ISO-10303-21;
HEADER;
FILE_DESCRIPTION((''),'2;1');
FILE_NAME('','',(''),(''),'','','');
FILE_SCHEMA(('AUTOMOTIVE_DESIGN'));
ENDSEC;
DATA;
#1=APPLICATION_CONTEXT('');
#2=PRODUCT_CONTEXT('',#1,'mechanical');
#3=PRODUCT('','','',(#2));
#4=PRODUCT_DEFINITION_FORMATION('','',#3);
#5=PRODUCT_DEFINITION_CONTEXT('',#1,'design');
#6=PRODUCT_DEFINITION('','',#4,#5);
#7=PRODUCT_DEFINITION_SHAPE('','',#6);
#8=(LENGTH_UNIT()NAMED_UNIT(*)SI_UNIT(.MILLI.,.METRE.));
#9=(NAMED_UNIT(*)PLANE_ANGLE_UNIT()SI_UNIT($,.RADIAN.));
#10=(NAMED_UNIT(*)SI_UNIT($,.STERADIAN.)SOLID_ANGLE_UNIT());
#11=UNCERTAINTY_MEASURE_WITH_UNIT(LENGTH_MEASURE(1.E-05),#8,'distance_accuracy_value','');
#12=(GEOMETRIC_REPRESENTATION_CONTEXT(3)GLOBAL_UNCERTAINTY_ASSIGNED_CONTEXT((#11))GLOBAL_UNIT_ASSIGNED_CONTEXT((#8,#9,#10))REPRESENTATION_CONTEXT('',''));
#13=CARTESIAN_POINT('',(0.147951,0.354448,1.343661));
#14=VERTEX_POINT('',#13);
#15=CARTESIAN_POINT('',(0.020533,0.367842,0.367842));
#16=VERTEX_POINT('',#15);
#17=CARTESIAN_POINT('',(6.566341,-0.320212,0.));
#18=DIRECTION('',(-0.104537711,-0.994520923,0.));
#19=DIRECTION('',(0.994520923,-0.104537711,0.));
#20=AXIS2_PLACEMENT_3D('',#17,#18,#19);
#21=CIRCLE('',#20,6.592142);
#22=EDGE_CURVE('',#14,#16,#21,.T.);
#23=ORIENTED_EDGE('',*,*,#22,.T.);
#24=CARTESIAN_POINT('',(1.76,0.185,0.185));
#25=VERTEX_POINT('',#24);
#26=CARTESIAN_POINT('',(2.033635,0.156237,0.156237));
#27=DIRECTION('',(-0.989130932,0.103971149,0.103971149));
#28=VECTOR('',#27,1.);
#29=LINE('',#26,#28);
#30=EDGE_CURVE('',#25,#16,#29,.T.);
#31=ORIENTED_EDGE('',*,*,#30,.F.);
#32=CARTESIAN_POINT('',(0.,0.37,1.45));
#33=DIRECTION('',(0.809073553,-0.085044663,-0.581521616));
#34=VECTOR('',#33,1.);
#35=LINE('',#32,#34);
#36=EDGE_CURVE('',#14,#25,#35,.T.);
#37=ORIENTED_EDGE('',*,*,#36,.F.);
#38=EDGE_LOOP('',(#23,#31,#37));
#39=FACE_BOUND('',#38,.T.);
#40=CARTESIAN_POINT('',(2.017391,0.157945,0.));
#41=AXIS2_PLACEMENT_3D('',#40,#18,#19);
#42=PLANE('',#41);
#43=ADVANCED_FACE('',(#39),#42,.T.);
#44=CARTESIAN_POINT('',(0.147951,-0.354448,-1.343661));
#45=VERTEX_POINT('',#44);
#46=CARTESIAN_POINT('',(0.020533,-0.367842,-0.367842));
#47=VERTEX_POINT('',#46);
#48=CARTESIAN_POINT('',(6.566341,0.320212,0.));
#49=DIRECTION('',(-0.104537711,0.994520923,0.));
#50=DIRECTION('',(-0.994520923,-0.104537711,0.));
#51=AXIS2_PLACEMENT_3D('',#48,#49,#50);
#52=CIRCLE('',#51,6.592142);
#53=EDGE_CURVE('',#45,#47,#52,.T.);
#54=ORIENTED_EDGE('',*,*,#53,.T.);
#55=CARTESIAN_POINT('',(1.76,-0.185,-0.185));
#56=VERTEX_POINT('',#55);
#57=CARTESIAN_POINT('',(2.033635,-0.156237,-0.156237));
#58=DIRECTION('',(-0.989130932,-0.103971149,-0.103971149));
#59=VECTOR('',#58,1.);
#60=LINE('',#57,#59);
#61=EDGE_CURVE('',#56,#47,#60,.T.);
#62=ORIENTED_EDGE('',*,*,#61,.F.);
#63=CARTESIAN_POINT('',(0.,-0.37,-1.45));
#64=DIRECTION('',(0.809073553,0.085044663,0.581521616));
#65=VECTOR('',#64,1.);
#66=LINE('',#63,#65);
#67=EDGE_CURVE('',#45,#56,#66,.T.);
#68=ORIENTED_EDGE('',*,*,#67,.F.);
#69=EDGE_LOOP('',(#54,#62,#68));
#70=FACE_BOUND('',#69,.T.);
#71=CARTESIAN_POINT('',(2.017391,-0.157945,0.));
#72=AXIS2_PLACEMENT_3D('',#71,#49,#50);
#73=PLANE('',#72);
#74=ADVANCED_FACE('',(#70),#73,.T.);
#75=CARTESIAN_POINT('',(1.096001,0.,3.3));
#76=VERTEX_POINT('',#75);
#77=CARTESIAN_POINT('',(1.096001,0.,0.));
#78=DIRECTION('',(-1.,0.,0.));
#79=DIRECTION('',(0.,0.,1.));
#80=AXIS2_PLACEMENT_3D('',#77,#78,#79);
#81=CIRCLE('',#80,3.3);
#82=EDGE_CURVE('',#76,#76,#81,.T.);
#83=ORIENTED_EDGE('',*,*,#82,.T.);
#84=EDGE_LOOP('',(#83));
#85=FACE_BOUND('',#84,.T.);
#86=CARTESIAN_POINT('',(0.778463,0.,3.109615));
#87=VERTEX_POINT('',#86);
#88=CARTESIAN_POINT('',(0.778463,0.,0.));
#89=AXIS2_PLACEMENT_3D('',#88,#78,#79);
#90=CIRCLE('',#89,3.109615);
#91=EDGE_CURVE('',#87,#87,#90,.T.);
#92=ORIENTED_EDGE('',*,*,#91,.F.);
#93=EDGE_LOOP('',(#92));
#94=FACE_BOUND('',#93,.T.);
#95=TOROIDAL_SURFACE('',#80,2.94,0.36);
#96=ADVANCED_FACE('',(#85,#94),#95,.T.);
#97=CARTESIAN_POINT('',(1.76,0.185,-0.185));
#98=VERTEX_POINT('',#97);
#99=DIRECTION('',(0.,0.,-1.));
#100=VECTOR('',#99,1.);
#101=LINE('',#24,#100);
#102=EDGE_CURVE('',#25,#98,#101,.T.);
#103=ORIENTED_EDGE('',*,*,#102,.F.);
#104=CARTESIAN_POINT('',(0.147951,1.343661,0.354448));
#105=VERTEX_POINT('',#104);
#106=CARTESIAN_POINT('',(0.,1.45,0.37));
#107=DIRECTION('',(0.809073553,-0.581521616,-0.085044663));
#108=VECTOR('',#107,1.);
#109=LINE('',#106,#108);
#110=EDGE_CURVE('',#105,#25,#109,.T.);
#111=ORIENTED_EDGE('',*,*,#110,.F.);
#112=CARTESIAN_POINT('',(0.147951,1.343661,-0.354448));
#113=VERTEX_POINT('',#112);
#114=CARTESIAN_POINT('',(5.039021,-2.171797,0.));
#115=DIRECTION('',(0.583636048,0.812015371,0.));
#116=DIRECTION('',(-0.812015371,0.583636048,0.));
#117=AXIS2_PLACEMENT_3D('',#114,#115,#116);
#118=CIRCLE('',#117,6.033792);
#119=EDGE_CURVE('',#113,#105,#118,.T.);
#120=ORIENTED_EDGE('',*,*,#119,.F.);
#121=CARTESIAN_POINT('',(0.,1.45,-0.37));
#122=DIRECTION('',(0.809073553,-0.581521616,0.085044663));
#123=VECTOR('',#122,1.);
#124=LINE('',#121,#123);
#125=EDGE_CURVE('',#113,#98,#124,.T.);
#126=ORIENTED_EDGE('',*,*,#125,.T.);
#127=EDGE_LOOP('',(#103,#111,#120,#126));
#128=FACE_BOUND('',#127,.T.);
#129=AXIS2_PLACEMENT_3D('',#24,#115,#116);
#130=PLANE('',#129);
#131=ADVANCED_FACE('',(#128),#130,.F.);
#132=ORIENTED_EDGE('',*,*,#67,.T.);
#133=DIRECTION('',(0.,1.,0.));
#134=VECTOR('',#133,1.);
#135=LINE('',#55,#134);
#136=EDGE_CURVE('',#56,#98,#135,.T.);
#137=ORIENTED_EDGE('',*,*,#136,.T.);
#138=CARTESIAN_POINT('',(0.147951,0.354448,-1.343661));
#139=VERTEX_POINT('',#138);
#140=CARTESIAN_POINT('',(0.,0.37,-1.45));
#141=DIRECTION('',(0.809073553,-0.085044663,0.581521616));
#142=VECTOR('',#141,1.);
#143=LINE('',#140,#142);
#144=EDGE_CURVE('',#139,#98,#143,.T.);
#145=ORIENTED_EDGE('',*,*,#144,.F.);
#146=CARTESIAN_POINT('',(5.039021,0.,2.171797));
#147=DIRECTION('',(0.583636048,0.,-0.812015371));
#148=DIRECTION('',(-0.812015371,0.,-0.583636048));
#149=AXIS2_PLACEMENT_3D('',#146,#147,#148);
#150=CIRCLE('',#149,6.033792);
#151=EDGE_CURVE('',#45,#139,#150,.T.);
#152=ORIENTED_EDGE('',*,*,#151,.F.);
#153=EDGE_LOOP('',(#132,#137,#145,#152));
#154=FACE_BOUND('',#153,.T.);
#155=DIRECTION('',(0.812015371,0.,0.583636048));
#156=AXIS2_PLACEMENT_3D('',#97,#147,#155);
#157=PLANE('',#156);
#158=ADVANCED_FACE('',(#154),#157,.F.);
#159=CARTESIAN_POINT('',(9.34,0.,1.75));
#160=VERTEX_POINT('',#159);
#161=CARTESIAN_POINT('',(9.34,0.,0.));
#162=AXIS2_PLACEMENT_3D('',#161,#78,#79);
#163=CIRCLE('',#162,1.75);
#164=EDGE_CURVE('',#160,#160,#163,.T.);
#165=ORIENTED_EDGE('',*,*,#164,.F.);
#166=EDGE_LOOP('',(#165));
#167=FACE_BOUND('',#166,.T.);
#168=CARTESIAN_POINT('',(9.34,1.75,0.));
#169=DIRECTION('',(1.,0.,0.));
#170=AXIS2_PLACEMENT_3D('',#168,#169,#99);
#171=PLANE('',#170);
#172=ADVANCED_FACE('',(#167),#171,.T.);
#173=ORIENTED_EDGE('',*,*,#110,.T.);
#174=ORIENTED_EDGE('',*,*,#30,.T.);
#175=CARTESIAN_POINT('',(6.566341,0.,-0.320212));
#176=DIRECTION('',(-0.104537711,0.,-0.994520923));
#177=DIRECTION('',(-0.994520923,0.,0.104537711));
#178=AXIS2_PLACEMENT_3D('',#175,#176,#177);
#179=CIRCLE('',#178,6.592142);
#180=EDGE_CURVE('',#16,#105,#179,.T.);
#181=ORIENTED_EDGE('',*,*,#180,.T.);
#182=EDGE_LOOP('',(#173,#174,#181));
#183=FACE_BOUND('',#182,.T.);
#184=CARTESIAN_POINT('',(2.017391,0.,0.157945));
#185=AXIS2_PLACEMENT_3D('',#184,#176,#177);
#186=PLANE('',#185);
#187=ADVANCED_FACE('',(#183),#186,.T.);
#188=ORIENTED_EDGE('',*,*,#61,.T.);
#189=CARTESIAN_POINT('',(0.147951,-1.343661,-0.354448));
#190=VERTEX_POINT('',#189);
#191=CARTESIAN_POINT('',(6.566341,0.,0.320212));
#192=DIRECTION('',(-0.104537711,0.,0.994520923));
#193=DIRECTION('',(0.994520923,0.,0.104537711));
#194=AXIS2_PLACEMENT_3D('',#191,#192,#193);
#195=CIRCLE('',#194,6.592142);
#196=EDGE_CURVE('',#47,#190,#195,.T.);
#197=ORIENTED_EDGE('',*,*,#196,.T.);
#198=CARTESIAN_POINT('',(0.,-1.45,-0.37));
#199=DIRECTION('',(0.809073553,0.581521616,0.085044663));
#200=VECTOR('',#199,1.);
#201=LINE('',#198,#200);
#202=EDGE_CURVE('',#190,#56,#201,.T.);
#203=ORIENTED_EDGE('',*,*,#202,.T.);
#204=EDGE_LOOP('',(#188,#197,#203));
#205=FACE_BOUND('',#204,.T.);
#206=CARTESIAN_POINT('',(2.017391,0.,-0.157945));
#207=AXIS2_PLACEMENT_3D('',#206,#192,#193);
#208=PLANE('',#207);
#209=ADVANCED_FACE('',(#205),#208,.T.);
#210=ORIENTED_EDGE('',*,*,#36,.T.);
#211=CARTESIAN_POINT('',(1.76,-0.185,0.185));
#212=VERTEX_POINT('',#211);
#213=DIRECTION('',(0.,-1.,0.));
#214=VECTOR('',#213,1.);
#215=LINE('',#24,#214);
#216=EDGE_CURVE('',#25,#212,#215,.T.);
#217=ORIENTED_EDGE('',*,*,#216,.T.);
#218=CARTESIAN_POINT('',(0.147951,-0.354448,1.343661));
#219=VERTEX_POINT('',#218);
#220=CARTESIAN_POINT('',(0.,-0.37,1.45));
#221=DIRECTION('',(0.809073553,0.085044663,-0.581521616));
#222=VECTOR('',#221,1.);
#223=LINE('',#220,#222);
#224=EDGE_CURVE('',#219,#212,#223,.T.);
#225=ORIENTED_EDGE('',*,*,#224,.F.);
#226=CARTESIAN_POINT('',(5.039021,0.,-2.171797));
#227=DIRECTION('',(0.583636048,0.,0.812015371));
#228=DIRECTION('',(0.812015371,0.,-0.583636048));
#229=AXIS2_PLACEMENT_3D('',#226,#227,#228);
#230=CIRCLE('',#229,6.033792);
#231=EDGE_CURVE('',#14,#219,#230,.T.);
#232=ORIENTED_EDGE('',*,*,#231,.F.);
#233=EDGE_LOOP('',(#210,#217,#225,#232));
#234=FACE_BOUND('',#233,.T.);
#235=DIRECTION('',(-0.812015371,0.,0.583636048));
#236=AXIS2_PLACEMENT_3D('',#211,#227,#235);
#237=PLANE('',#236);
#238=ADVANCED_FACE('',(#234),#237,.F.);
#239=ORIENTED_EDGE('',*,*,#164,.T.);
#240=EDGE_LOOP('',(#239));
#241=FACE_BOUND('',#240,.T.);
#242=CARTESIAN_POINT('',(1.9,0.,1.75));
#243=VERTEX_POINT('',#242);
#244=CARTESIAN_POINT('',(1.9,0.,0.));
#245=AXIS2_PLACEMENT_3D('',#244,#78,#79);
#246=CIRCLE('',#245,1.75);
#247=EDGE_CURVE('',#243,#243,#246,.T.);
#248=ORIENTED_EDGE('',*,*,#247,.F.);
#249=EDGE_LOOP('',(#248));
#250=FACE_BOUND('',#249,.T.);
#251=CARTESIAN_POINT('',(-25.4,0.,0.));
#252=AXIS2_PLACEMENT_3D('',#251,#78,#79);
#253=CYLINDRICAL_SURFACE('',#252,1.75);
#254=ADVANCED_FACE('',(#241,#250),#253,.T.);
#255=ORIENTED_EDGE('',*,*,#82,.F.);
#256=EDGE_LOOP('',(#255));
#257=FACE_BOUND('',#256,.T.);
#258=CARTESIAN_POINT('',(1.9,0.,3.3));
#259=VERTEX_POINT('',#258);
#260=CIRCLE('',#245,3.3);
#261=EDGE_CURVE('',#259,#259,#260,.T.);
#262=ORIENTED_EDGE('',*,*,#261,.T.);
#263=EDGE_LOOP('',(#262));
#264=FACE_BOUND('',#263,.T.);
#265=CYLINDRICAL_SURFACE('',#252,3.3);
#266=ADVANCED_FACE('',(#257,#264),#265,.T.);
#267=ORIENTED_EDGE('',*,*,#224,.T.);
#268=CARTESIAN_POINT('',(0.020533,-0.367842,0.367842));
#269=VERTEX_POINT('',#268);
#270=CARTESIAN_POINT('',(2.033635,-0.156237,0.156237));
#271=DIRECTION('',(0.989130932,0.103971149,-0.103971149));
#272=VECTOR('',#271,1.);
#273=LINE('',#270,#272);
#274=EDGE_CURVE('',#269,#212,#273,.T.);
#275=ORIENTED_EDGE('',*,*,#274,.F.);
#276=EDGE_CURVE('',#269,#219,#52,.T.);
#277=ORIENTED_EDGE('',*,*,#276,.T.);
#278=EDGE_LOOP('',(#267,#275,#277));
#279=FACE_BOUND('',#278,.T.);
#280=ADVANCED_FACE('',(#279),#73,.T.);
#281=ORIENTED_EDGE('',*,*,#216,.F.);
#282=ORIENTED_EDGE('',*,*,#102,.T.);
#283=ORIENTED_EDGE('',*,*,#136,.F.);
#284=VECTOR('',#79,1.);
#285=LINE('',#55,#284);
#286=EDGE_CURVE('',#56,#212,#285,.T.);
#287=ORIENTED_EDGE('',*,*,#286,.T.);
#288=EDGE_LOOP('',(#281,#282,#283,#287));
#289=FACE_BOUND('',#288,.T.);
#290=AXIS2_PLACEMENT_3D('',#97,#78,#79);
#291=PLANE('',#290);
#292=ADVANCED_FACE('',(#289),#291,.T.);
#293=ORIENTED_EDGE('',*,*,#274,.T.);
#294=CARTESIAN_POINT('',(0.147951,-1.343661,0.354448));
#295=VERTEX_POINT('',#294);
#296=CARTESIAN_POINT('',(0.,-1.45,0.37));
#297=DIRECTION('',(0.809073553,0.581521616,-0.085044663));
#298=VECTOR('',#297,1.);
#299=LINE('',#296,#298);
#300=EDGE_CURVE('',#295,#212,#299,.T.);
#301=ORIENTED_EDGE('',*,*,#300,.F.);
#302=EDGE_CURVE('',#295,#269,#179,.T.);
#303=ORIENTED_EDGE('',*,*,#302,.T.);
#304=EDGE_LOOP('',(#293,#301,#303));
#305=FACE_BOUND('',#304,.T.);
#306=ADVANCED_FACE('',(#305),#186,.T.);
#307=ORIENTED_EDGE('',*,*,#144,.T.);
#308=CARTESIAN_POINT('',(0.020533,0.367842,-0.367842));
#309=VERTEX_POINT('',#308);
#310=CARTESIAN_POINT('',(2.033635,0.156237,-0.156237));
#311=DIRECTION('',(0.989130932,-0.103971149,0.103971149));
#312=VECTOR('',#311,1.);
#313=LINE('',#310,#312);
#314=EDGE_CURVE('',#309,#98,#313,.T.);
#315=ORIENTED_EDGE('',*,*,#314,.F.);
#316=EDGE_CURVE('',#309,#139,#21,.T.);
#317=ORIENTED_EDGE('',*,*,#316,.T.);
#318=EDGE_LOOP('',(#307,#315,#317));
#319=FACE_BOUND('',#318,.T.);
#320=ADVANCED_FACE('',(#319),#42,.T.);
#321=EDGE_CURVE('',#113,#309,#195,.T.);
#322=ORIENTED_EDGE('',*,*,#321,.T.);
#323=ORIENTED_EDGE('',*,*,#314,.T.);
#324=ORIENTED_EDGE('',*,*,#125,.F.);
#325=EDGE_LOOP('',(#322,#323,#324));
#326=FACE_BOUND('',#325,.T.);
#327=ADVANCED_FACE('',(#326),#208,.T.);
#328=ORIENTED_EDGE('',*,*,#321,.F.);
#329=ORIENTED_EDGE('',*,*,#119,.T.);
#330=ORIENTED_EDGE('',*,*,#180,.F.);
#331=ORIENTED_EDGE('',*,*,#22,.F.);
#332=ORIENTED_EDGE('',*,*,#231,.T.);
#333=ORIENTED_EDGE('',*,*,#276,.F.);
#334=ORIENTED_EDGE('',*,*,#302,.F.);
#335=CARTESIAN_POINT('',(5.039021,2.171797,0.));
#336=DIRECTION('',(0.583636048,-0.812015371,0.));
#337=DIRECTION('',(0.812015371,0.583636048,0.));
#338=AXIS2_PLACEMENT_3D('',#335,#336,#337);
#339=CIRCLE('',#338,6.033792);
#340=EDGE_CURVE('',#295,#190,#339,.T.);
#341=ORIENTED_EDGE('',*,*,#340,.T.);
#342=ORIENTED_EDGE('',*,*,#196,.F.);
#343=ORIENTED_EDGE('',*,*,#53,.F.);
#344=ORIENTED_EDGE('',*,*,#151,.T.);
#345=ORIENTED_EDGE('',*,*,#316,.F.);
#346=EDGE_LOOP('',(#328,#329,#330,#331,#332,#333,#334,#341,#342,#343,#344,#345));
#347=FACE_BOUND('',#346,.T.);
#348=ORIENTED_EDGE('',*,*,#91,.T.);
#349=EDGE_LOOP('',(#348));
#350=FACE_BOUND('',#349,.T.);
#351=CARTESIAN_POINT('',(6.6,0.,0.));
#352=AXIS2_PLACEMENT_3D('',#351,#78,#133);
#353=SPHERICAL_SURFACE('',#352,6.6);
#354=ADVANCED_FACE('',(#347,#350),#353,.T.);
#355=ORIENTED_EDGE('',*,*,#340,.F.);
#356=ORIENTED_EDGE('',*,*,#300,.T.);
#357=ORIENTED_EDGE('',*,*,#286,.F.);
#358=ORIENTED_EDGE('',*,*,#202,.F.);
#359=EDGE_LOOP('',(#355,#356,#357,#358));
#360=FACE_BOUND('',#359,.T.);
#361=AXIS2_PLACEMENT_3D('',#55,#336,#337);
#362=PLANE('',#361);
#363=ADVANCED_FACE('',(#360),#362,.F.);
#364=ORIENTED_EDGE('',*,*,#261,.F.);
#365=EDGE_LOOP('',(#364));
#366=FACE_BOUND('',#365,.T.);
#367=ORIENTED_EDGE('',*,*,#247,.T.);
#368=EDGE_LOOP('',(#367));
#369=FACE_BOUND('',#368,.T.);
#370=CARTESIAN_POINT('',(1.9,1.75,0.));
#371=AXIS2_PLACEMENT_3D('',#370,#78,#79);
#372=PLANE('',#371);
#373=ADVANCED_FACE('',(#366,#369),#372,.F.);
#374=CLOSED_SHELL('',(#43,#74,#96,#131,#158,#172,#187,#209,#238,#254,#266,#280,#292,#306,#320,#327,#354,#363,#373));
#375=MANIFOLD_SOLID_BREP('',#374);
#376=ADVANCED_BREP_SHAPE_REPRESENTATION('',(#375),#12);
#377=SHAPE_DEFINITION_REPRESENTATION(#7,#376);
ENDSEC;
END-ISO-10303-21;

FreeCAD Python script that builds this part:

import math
import FreeCAD as App
import Part
import Sketcher

V = App.Vector


def add_polygon(sketch, points):
    """Adds a closed chain of lines whose ends are joined by coincident constraints."""
    first, n = sketch.GeometryCount, len(points)
    for a, b in zip(points, points[1:] + points[:1]):
        sketch.addGeometry(Part.LineSegment(App.Vector(*a, 0), App.Vector(*b, 0)), False)
    for i in range(n):
        sketch.addConstraint(Sketcher.Constraint("Coincident", first + i, 2, first + (i + 1) % n, 1))

doc = App.newDocument("Part")
params = doc.addObject("Spreadsheet::Sheet", "Params")
for row, (alias, value) in enumerate([
    ("sketch1_radius", "6.6 mm"),
    ("sketch1_radius2", "0.36 mm"),
    ("sketch1_width", "9.34 mm"),
    ("sketch1_width2", "7.44 mm"),
    ("sketch1_height", "1.55 mm"),
    ("revolution_angle", "360 deg"),
    ("sketch2_width", "2.9 mm"),
    ("sketch2_height", "0.74 mm"),
    ("sketch3_width", "0.37 mm"),
], start=1):
    params.set(f"A{row}", alias)
    params.set(f"B{row}", "=" + value)
    params.setAlias(f"B{row}", alias)

body = doc.addObject("PartDesign::Body", "Body")

sketch1 = body.newObject("Sketcher::SketchObject", "Sketch")
sketch1.AttachmentSupport = (doc.getObject("XY_Plane"), [""])
sketch1.MapMode = "FlatFace"
sketch1.addGeometry([
    Part.LineSegment(V(1.9, 1.75, 0), V(1.9, 3.3, 0)),
    Part.LineSegment(V(1.9, 3.3, 0), V(1.1, 3.3, 0)),
    Part.ArcOfCircle(Part.Circle(V(1.1, 2.94, 0), V(0, 0, 1), 0.36), math.radians(90), math.radians(152)),
    Part.ArcOfCircle(Part.Circle(V(6.6, 0, 0), V(0, 0, 1), 6.6), math.radians(152), math.radians(180)),
    Part.LineSegment(V(0, 0, 0), V(9.34, 0, 0)),
    Part.LineSegment(V(9.34, 0, 0), V(9.34, 1.75, 0)),
    Part.LineSegment(V(9.34, 1.75, 0), V(1.9, 1.75, 0)),
], False)
sketch1.addConstraint([
    Sketcher.Constraint("Coincident", 0, 2, 1, 1),
    Sketcher.Constraint("Tangent", 1, 2, 2, 1),
    Sketcher.Constraint("Tangent", 2, 2, 3, 1),
    Sketcher.Constraint("Coincident", 3, 2, 4, 1),
    Sketcher.Constraint("Coincident", 4, 2, 5, 1),
    Sketcher.Constraint("Coincident", 5, 2, 6, 1),
    Sketcher.Constraint("Coincident", 6, 2, 0, 1),
    Sketcher.Constraint("Vertical", 0),
    Sketcher.Constraint("Horizontal", 1),
    Sketcher.Constraint("Horizontal", 4),
    Sketcher.Constraint("Vertical", 5),
    Sketcher.Constraint("Horizontal", 6),
    Sketcher.Constraint("Coincident", 3, 2, -1, 1),
    Sketcher.Constraint("PointOnObject", 3, 3, -1),
    Sketcher.Constraint("Radius", 3, 6.6),
    Sketcher.Constraint("Radius", 2, 0.36),
    Sketcher.Constraint("DistanceX", 4, 1, 4, 2, 9.34),
    Sketcher.Constraint("DistanceX", 6, 2, 6, 1, 7.44),
    Sketcher.Constraint("DistanceY", 0, 1, 0, 2, 1.55),
    Sketcher.Constraint("DistanceY", 5, 1, 5, 2, 1.75),
])
sketch1.setExpression("Constraints[14]", "Params.sketch1_radius")
sketch1.setExpression("Constraints[15]", "Params.sketch1_radius2")
sketch1.setExpression("Constraints[16]", "Params.sketch1_width")
sketch1.setExpression("Constraints[17]", "Params.sketch1_width2")
sketch1.setExpression("Constraints[18]", "Params.sketch1_height")
revolution = body.newObject("PartDesign::Revolution", "Revolution")
revolution.Profile = sketch1
revolution.ReferenceAxis = (sketch1, ["H_Axis"])
revolution.setExpression("Angle", "Params.revolution_angle")

sketch2 = body.newObject("Sketcher::SketchObject", "Sketch001")
sketch2.AttachmentSupport = (doc.getObject("YZ_Plane"), [""])
sketch2.MapMode = "FlatFace"
add_polygon(sketch2, [(1.4, 0.4), (-1.4, 0.4), (-1.4, -0.4), (1.4, -0.4)])
sketch2.addConstraint([
    Sketcher.Constraint("Horizontal", 0),
    Sketcher.Constraint("Vertical", 1),
    Sketcher.Constraint("Horizontal", 2),
    Sketcher.Constraint("Vertical", 3),
    Sketcher.Constraint("Symmetric", 0, 2, 2, 2, -1, 1),
    Sketcher.Constraint("DistanceX", 0, 2, 0, 1, 2.9),
    Sketcher.Constraint("DistanceY", 1, 2, 1, 1, 0.74),
])
sketch2.setExpression("Constraints[9]", "Params.sketch2_width")
sketch2.setExpression("Constraints[10]", "Params.sketch2_height")

sketch3 = body.newObject("Sketcher::SketchObject", "Sketch002")
sketch3.AttachmentSupport = (doc.getObject("YZ_Plane"), [""])
sketch3.MapMode = "FlatFace"
sketch3.AttachmentOffset = App.Placement(V(0, 0, 1.76), App.Rotation())
add_polygon(sketch3, [(0.18, 0.18), (-0.18, 0.18), (-0.18, -0.18), (0.18, -0.18)])
sketch3.addConstraint([
    Sketcher.Constraint("Horizontal", 0),
    Sketcher.Constraint("Vertical", 1),
    Sketcher.Constraint("Horizontal", 2),
    Sketcher.Constraint("Vertical", 3),
    Sketcher.Constraint("Symmetric", 0, 2, 2, 2, -1, 1),
    Sketcher.Constraint("Equal", 2, 1),
    Sketcher.Constraint("DistanceX", 0, 2, 0, 1, 0.37),
])
sketch3.setExpression("Constraints[10]", "Params.sketch3_width")

subtractiveloft = body.newObject("PartDesign::SubtractiveLoft", "SubtractiveLoft")
subtractiveloft.Profile = sketch2
subtractiveloft.Sections = [sketch3]
doc.recompute()

polarpattern = body.newObject("PartDesign::PolarPattern", "PolarPattern")
polarpattern.Originals = [subtractiveloft]
polarpattern.Axis = (doc.getObject("X_Axis"), [""])
polarpattern.Angle = 90
polarpattern.Occurrences = 2
body.Tip = polarpattern

doc.recompute()
